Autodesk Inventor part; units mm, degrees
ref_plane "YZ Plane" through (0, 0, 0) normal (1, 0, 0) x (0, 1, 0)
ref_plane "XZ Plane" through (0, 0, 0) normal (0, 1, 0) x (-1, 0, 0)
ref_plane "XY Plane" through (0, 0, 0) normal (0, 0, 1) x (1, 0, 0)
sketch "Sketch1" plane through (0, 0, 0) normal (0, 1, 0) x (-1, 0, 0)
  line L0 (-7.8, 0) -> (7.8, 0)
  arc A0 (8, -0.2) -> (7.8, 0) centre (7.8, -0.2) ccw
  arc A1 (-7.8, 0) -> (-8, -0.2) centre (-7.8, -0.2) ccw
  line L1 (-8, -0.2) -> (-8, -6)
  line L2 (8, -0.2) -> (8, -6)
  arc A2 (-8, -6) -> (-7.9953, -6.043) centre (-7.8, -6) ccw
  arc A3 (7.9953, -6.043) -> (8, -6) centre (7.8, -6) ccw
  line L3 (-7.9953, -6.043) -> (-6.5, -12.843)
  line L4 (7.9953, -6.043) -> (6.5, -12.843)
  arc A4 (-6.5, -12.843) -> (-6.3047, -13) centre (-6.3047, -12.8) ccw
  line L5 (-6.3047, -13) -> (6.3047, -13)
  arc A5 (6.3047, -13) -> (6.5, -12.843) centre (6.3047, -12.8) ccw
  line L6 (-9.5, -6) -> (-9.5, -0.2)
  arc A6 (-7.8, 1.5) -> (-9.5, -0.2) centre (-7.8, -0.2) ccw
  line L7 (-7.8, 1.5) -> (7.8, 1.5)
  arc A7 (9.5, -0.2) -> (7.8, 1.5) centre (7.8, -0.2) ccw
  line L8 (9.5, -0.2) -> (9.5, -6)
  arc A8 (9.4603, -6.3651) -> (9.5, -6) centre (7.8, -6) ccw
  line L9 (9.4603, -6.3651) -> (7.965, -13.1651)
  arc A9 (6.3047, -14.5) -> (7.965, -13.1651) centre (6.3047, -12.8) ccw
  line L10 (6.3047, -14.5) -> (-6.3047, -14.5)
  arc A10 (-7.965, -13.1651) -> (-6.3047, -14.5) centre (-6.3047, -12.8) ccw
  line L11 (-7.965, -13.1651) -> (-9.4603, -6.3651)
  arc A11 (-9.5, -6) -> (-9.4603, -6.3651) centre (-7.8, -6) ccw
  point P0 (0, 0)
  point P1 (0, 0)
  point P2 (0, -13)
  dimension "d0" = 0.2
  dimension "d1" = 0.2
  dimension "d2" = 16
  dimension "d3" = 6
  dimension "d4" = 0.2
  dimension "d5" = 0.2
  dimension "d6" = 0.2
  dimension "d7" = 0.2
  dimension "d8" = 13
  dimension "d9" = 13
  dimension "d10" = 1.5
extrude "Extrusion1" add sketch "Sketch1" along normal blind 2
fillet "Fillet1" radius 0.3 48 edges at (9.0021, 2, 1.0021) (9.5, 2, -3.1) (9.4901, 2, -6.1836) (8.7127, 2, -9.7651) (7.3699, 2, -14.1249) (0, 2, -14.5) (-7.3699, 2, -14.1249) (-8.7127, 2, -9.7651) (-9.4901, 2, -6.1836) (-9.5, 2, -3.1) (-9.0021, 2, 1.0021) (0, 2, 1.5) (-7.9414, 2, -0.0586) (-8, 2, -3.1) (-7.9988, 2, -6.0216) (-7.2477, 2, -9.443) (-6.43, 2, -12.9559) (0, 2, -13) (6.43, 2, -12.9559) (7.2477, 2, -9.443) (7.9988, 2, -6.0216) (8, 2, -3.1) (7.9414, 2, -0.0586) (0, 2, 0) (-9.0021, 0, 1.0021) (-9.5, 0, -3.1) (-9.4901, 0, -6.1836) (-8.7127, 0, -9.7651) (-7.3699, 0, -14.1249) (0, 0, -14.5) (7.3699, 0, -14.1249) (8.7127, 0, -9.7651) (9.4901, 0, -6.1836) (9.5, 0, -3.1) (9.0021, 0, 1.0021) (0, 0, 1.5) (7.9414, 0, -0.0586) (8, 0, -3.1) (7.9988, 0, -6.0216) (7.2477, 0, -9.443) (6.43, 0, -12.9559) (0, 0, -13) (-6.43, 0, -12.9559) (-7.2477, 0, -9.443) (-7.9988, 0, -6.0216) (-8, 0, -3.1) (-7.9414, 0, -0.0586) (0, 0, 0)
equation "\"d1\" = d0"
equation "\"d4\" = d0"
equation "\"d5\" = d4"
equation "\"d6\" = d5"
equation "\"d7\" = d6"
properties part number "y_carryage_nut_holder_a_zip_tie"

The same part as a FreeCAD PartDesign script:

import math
import FreeCAD as App
import Part
import Sketcher
from FreeCAD import Vector


def edges_at(feature, points):
    """Names of the edges that pass closest to the given points."""
    edges = feature.Shape.Edges
    near = lambda p: min(range(len(edges)), key=lambda i: edges[i].distToShape(Part.Vertex(*p))[0])
    return sorted({f"Edge{near(p) + 1}" for p in points})

doc = App.newDocument("Part")
body = doc.addObject("PartDesign::Body", "Body")

sketch1 = body.newObject("Sketcher::SketchObject", "Sketch")
sketch1.AttachmentSupport = (doc.getObject("XZ_Plane"), [""])
sketch1.MapMode = "FlatFace"
sketch1.addGeometry([
    Part.LineSegment(Vector(9.5, -0.2, 0), Vector(9.5, -6, 0)),
    Part.ArcOfCircle(Part.Circle(Vector(7.802658, -6.000144, 0), Vector(0, 0, 1), 1.697342), math.radians(-12.416476), math.radians(0.004859)),
    Part.LineSegment(Vector(9.4603, -6.3651, 0), Vector(7.965, -13.1651, 0)),
    Part.ArcOfCircle(Part.Circle(Vector(6.3047, -12.8, 0), Vector(0, 0, 1), 1.699969), math.radians(-90), math.radians(-12.401954)),
    Part.LineSegment(Vector(6.3047, -14.5, 0), Vector(-6.3047, -14.5, 0)),
    Part.ArcOfCircle(Part.Circle(Vector(-6.3047, -12.8, 0), Vector(0, 0, 1), 1.7), math.radians(-167.598046), math.radians(-90)),
    Part.LineSegment(Vector(-7.965, -13.1651, 0), Vector(-9.4603, -6.3651, 0)),
    Part.ArcOfCircle(Part.Circle(Vector(-7.797365, -5.999568, 0), Vector(0, 0, 1), 1.702635), math.radians(-179.985479), math.radians(-167.602905)),
    Part.LineSegment(Vector(-9.5, -6, 0), Vector(-9.5, -0.2, 0)),
    Part.ArcOfCircle(Part.Circle(Vector(-7.8, -0.2, 0), Vector(0, 0, 1), 1.7), math.radians(90), math.radians(180)),
    Part.LineSegment(Vector(-7.8, 1.5, 0), Vector(7.8, 1.5, 0)),
    Part.ArcOfCircle(Part.Circle(Vector(7.8, -0.2, 0), Vector(0, 0, 1), 1.7), math.radians(0), math.radians(90)),
    Part.ArcOfCircle(Part.Circle(Vector(7.8, -0.2, 0), Vector(0, 0, 1), 0.2), math.radians(0), math.radians(90)),
    Part.LineSegment(Vector(7.8, 0, 0), Vector(-7.8, 0, 0)),
    Part.ArcOfCircle(Part.Circle(Vector(-7.8, -0.2, 0), Vector(0, 0, 1), 0.2), math.radians(90), math.radians(180)),
    Part.LineSegment(Vector(-8, -0.2, 0), Vector(-8, -6, 0)),
    Part.ArcOfCircle(Part.Circle(Vector(-7.798105, -5.999689, 0), Vector(0, 0, 1), 0.201895), math.radians(-179.911827), math.radians(-167.612574)),
    Part.LineSegment(Vector(-7.9953, -6.043, 0), Vector(-6.5, -12.843, 0)),
    Part.ArcOfCircle(Part.Circle(Vector(-6.3047, -12.8, 0), Vector(0, 0, 1), 0.2), math.radians(-167.583068), math.radians(-90)),
    Part.LineSegment(Vector(-6.3047, -13, 0), Vector(6.3047, -13, 0)),
    Part.ArcOfCircle(Part.Circle(Vector(6.3047, -12.8, 0), Vector(0, 0, 1), 0.199978), math.radians(-90), math.radians(-12.416932)),
    Part.LineSegment(Vector(6.5, -12.843, 0), Vector(7.9953, -6.043, 0)),
    Part.ArcOfCircle(Part.Circle(Vector(7.801881, -6.000102, 0), Vector(0, 0, 1), 0.198119), math.radians(-12.505106), math.radians(0.029506)),
    Part.LineSegment(Vector(8, -6, 0), Vector(8, -0.2, 0)),
], False)
sketch1.addConstraint([
    Sketcher.Constraint("Coincident", 0, 2, 1, 2),
    Sketcher.Constraint("Coincident", 1, 1, 2, 1),
    Sketcher.Constraint("Coincident", 2, 2, 3, 2),
    Sketcher.Constraint("Coincident", 3, 1, 4, 1),
    Sketcher.Constraint("Coincident", 4, 2, 5, 2),
    Sketcher.Constraint("Coincident", 5, 1, 6, 1),
    Sketcher.Constraint("Coincident", 6, 2, 7, 2),
    Sketcher.Constraint("Coincident", 7, 1, 8, 1),
    Sketcher.Constraint("Coincident", 8, 2, 9, 2),
    Sketcher.Constraint("Coincident", 9, 1, 10, 1),
    Sketcher.Constraint("Coincident", 10, 2, 11, 2),
    Sketcher.Constraint("Coincident", 11, 1, 0, 1),
    Sketcher.Constraint("Coincident", 12, 2, 13, 1),
    Sketcher.Constraint("Coincident", 13, 2, 14, 1),
    Sketcher.Constraint("Coincident", 14, 2, 15, 1),
    Sketcher.Constraint("Coincident", 15, 2, 16, 1),
    Sketcher.Constraint("Coincident", 16, 2, 17, 1),
    Sketcher.Constraint("Coincident", 17, 2, 18, 1),
    Sketcher.Constraint("Coincident", 18, 2, 19, 1),
    Sketcher.Constraint("Coincident", 19, 2, 20, 1),
    Sketcher.Constraint("Coincident", 20, 2, 21, 1),
    Sketcher.Constraint("Coincident", 21, 2, 22, 1),
    Sketcher.Constraint("Coincident", 22, 2, 23, 1),
    Sketcher.Constraint("Coincident", 23, 2, 12, 1),
    Sketcher.Constraint("Vertical", 0),
    Sketcher.Constraint("Horizontal", 4),
    Sketcher.Constraint("Vertical", 8),
    Sketcher.Constraint("Horizontal", 10),
    Sketcher.Constraint("Horizontal", 13),
    Sketcher.Constraint("Vertical", 15),
    Sketcher.Constraint("Horizontal", 19),
    Sketcher.Constraint("Vertical", 23),
    Sketcher.Constraint("Coincident", 12, 3, 11, 3),
    Sketcher.Constraint("Coincident", 14, 3, 9, 3),
    Sketcher.Constraint("Coincident", 18, 3, 5, 3),
    Sketcher.Constraint("Coincident", 20, 3, 3, 3),
    Sketcher.Constraint("PointOnObject", 12, 2, -1),
    Sketcher.Constraint("Radius", 12, 0.2),
    Sketcher.Constraint("Radius", 14, 0.2),
    Sketcher.Constraint("Radius", 18, 0.2),
    Sketcher.Constraint("Radius", 20, 0.2),
    Sketcher.Constraint("DistanceY", 22, 3, -1, 1, 6.0),
    Sketcher.Constraint("DistanceY", 0, 2, -1, 1, 6.0),
    Sketcher.Constraint("DistanceY", 7, 1, -1, 1, 6.0),
    Sketcher.Constraint("DistanceY", 15, 2, -1, 1, 6.0),
    Sketcher.Constraint("DistanceY", 18, 2, -1, 1, 13.0),
    Sketcher.Constraint("DistanceY", 22, 2, -1, 1, 6.0),
    Sketcher.Constraint("DistanceY", 8, 2, -1, 1, 0.2),
    Sketcher.Constraint("DistanceY", -1, 1, 9, 1, 1.5),
    Sketcher.Constraint("DistanceY", 11, 1, -1, 1, 0.2),
    Sketcher.Constraint("DistanceY", 14, 2, -1, 1, 0.2),
    Sketcher.Constraint("DistanceY", 23, 2, -1, 1, 0.2),
    Sketcher.Constraint("Radius", 3, 1.7),
    Sketcher.Constraint("DistanceX", 14, 2, 13, 2, 0.2),
    Sketcher.Constraint("DistanceX", 14, 2, 9, 1, 0.2),
    Sketcher.Constraint("DistanceX", 12, 2, 23, 2, 0.2),
    Sketcher.Constraint("DistanceX", 10, 2, 23, 2, 0.2),
    Sketcher.Constraint("DistanceX", 10, 1, 10, 2, 15.6),
    Sketcher.Constraint("DistanceX", 14, 2, -1, 1, 8.0),
    Sketcher.Constraint("Radius", 16, 0.202),
    Sketcher.Constraint("Radius", 22, 0.198),
    Sketcher.Constraint("DistanceY", 1, 3, -1, 1, 6.0001),
    Sketcher.Constraint("DistanceY", 7, 3, -1, 1, 5.9996),
    Sketcher.Constraint("DistanceY", 16, 3, -1, 1, 5.9997),
    Sketcher.Constraint("DistanceX", 17, 2, -1, 1, 6.5),
    Sketcher.Constraint("DistanceX", -1, 1, 20, 2, 6.5),
    Sketcher.Constraint("Radius", 1, 1.6973),
    Sketcher.Constraint("Radius", 7, 1.7026),
    Sketcher.Constraint("DistanceY", 2, 2, 1, 1, 6.8),
    Sketcher.Constraint("DistanceY", 5, 1, 6, 2, 6.8),
    Sketcher.Constraint("DistanceY", 17, 2, 16, 2, 6.8),
    Sketcher.Constraint("DistanceX", 4, 2, 4, 1, 12.6094),
    Sketcher.Constraint("DistanceX", 19, 1, 19, 2, 12.6094),
    Sketcher.Constraint("DistanceY", 1, 1, -1, 1, 6.365),
    Sketcher.Constraint("DistanceX", -1, 1, 2, 2, 7.965),
    Sketcher.Constraint("DistanceX", 5, 1, -1, 1, 7.965),
    Sketcher.Constraint("DistanceY", 5, 1, -1, 1, 13.165),
    Sketcher.Constraint("DistanceY", 21, 2, -1, 1, 6.043),
    Sketcher.Constraint("DistanceX", 3, 1, 1, 3, 1.498),
    Sketcher.Constraint("DistanceX", 18, 2, -1, 1, 6.3047),
])
pad1 = body.newObject("PartDesign::Pad", "Pad")
pad1.Profile = sketch1
pad1.Length = 2
pad1.Reversed = True
doc.recompute()

fillet = body.newObject("PartDesign::Fillet", "Fillet")
fillet.Base = (pad1, edges_at(pad1, [
    (9.002, 2, 1.002),
    (9.5, 2, -3.1),
    (9.49, 2, -6.184),
    (8.713, 2, -9.765),
    (7.37, 2, -14.125),
    (0, 2, -14.5),
    (-7.37, 2, -14.125),
    (-8.713, 2, -9.765),
    (-9.49, 2, -6.184),
    (-9.5, 2, -3.1),
    (-9.002, 2, 1.002),
    (0, 2, 1.5),
    (-7.941, 2, -0.059),
    (-8, 2, -3.1),
    (-7.999, 2, -6.022),
    (-7.248, 2, -9.443),
    (-6.43, 2, -12.956),
    (0, 2, -13),
    (6.43, 2, -12.956),
    (7.248, 2, -9.443),
    (7.999, 2, -6.022),
    (8, 2, -3.1),
    (7.941, 2, -0.059),
    (0, 2, 0),
    (-9.002, 0, 1.002),
    (-9.5, 0, -3.1),
    (-9.49, 0, -6.184),
    (-8.713, 0, -9.765),
    (-7.37, 0, -14.125),
    (0, 0, -14.5),
    (7.37, 0, -14.125),
    (8.713, 0, -9.765),
    (9.49, 0, -6.184),
    (9.5, 0, -3.1),
    (9.002, 0, 1.002),
    (0, 0, 1.5),
    (7.941, 0, -0.059),
    (8, 0, -3.1),
    (7.999, 0, -6.022),
    (7.248, 0, -9.443),
    (6.43, 0, -12.956),
    (0, 0, -13),
    (-6.43, 0, -12.956),
    (-7.248, 0, -9.443),
    (-7.999, 0, -6.022),
    (-8, 0, -3.1),
    (-7.941, 0, -0.059),
    (0, 0, 0),
]))
fillet.Radius = 0.3

doc.recompute()
